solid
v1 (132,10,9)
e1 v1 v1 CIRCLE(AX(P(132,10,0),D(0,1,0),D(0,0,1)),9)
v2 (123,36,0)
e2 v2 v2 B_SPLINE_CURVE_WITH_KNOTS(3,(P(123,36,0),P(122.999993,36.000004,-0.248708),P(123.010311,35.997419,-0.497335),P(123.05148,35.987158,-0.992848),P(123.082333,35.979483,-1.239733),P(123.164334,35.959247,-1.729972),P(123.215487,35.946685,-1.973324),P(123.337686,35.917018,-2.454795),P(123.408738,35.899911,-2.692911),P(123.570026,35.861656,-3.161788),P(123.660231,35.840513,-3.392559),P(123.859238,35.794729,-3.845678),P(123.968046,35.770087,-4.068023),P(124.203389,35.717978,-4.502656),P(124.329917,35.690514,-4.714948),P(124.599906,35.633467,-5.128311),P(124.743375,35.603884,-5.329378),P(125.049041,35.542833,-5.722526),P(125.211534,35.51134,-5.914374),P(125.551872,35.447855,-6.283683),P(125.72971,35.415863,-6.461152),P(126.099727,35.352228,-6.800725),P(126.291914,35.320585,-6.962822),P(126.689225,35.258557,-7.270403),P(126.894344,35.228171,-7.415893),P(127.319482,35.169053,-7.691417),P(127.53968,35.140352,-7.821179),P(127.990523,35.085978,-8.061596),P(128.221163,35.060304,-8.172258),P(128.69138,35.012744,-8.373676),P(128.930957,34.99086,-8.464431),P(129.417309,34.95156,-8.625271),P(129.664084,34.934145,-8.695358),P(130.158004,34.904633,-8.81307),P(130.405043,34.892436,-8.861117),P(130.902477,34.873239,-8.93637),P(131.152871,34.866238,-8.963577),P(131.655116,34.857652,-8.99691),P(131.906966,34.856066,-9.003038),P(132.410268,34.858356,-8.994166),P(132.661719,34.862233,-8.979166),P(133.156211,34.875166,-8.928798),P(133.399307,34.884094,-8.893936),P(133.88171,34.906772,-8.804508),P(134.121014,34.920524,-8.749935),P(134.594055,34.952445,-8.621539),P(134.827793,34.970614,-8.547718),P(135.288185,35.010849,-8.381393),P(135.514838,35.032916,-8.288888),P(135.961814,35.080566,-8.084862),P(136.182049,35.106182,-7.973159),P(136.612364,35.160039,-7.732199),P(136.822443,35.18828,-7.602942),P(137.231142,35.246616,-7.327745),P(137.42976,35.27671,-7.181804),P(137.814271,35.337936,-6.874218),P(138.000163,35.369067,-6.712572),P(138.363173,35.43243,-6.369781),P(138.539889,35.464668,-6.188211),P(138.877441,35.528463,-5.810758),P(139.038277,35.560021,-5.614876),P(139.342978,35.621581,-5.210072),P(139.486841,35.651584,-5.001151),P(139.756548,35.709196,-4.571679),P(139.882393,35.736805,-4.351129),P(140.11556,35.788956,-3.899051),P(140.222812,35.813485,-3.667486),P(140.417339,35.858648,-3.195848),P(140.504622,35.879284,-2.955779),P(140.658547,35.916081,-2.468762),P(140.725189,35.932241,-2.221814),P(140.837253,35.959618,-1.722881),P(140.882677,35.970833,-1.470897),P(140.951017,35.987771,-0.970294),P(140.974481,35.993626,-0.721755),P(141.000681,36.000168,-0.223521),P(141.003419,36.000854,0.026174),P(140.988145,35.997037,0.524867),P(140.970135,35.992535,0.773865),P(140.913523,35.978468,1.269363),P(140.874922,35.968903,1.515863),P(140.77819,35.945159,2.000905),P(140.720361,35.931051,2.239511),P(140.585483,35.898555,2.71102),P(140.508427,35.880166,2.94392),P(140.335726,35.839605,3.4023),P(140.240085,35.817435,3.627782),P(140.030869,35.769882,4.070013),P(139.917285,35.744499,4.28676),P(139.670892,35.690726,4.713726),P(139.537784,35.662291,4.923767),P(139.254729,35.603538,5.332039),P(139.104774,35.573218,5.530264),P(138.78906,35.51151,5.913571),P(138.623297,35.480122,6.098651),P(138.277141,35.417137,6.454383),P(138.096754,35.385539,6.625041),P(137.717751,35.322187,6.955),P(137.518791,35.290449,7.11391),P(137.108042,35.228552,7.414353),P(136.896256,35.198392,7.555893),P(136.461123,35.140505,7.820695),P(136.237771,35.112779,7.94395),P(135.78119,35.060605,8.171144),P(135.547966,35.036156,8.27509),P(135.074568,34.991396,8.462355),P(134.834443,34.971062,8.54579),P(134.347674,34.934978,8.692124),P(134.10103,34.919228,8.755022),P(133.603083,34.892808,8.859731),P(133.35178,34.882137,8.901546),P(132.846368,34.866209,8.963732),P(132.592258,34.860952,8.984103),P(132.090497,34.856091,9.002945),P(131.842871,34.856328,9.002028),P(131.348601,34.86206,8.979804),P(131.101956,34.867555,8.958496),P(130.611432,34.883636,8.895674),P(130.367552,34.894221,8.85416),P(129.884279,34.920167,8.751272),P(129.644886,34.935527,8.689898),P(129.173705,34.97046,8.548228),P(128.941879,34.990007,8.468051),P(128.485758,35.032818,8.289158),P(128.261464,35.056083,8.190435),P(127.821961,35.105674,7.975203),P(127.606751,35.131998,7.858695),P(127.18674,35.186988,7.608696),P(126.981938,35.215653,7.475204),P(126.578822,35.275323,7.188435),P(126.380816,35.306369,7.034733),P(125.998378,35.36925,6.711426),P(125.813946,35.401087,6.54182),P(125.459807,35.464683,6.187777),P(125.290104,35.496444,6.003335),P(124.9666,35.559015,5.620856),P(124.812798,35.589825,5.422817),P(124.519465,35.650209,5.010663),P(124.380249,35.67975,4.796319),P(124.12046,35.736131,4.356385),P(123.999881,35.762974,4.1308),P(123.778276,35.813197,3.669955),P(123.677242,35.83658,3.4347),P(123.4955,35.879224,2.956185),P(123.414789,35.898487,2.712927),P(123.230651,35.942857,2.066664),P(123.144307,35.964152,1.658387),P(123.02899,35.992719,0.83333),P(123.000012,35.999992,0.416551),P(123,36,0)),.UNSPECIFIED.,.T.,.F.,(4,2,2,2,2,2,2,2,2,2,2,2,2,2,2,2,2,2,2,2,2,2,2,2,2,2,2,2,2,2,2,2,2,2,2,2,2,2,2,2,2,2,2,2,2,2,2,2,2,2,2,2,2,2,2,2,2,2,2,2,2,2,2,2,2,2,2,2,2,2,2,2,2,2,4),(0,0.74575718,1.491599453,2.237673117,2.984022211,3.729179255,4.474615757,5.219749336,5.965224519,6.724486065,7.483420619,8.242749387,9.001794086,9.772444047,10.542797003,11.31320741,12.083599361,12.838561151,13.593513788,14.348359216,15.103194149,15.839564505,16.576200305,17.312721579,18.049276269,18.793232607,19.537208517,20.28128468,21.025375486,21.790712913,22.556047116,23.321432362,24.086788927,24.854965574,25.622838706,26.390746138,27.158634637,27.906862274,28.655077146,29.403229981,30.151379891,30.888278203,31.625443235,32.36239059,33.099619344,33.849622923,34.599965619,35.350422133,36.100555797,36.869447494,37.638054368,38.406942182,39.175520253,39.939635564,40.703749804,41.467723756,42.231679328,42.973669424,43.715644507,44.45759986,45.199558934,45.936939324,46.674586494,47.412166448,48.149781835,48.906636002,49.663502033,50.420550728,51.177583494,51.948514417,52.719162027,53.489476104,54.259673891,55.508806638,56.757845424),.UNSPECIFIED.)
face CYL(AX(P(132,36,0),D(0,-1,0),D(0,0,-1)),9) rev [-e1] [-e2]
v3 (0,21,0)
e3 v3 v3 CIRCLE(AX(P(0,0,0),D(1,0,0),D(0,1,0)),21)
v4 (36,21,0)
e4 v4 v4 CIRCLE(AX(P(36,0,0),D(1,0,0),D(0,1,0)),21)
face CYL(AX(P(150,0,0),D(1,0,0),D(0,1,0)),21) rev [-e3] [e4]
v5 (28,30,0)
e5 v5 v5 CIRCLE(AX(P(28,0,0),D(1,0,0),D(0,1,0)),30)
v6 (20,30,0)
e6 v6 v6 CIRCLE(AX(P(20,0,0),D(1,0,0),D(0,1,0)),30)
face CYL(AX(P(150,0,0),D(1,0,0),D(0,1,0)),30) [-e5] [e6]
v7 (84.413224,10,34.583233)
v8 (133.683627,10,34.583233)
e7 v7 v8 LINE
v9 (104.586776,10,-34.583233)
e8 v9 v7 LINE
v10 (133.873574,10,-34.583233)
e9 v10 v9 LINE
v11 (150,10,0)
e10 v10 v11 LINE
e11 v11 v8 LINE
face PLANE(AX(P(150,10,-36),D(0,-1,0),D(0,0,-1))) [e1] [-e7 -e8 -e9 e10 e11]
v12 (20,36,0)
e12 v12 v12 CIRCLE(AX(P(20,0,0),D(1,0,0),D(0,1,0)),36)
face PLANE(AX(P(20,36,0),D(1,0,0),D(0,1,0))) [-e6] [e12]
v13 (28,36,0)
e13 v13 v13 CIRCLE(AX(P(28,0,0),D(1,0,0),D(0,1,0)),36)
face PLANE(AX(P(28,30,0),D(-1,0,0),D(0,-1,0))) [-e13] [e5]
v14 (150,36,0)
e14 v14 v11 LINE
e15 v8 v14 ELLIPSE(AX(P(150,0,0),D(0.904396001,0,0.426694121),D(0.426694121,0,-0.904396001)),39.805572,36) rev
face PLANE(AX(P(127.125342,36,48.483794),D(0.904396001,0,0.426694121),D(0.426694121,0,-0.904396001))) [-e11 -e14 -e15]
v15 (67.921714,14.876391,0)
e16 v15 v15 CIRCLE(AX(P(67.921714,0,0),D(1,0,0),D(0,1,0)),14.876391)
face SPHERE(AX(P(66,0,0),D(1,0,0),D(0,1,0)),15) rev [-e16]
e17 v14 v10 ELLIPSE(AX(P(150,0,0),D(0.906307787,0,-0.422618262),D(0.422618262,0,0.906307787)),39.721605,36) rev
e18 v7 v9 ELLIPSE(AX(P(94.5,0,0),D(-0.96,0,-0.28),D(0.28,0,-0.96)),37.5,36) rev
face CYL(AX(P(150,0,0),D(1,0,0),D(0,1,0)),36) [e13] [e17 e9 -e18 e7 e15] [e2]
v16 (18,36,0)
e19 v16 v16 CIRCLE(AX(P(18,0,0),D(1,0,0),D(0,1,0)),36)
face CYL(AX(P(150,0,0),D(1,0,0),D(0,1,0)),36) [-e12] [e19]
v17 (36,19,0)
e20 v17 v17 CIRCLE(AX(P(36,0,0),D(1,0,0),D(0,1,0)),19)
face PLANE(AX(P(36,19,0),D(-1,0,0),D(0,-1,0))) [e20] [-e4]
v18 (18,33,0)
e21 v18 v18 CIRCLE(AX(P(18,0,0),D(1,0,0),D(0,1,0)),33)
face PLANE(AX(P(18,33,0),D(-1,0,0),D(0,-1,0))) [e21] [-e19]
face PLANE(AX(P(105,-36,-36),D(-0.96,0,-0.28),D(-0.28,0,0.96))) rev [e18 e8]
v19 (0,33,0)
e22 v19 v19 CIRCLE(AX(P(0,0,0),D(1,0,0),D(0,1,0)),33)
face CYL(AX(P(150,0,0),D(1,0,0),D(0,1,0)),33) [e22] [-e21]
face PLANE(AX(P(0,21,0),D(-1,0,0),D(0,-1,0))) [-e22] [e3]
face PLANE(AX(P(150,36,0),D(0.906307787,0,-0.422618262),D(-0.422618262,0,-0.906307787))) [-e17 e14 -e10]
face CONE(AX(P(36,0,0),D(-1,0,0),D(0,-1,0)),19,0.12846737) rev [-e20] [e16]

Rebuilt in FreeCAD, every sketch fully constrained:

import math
import FreeCAD as App
import Part
import Sketcher
Q = App.Units.Quantity


def add_polygon(sketch, points):
    """Adds a closed chain of lines whose ends are joined by coincident constraints."""
    first, n = sketch.GeometryCount, len(points)
    for a, b in zip(points, points[1:] + points[:1]):
        sketch.addGeometry(Part.LineSegment(App.Vector(*a, 0), App.Vector(*b, 0)), False)
    for i in range(n):
        sketch.addConstraint(Sketcher.Constraint("Coincident", first + i, 2, first + (i + 1) % n, 1))

doc = App.newDocument("Part")
body = doc.addObject("PartDesign::Body", "Body")

# Sketch on XY plane
sketch1 = doc.addObject("Sketcher::SketchObject", "Sketch")
body.addObject(sketch1)
sketch1.AttachmentSupport = (doc.XY_Plane, [""])
sketch1.MapMode = "FlatFace"
sketch1.addGeometry(Part.LineSegment(App.Vector(0, 33, 0), App.Vector(0, 21, 0)), False)
sketch1.addGeometry(Part.LineSegment(App.Vector(0, 21, 0), App.Vector(36, 21, 0)), False)
sketch1.addGeometry(Part.LineSegment(App.Vector(36, 21, 0), App.Vector(36, 19, 0)), False)
sketch1.addGeometry(Part.LineSegment(App.Vector(36, 19, 0), App.Vector(67.921714, 14.876391, 0)), False)
sketch1.addGeometry(Part.ArcOfCircle(Part.Circle(App.Vector(66, 0, 0), App.Vector(0, 0, 1), 15), math.radians(0), math.radians(82.639362)), False)
sketch1.addGeometry(Part.LineSegment(App.Vector(81, 0, 0), App.Vector(150, 0, 0)), False)
sketch1.addGeometry(Part.LineSegment(App.Vector(150, 0, 0), App.Vector(150, 36, 0)), False)
sketch1.addGeometry(Part.LineSegment(App.Vector(150, 36, 0), App.Vector(28, 36, 0)), False)
sketch1.addGeometry(Part.LineSegment(App.Vector(28, 36, 0), App.Vector(28, 30, 0)), False)
sketch1.addGeometry(Part.LineSegment(App.Vector(28, 30, 0), App.Vector(20, 30, 0)), False)
sketch1.addGeometry(Part.LineSegment(App.Vector(20, 30, 0), App.Vector(20, 36, 0)), False)
sketch1.addGeometry(Part.LineSegment(App.Vector(20, 36, 0), App.Vector(18, 36, 0)), False)
sketch1.addGeometry(Part.LineSegment(App.Vector(18, 36, 0), App.Vector(18, 33, 0)), False)
sketch1.addGeometry(Part.LineSegment(App.Vector(18, 33, 0), App.Vector(0, 33, 0)), False)
sketch1.addConstraint(Sketcher.Constraint("Coincident", 0, 2, 1, 1))
sketch1.addConstraint(Sketcher.Constraint("Coincident", 1, 2, 2, 1))
sketch1.addConstraint(Sketcher.Constraint("Coincident", 2, 2, 3, 1))
sketch1.addConstraint(Sketcher.Constraint("Tangent", 3, 2, 4, 2))
sketch1.addConstraint(Sketcher.Constraint("Coincident", 4, 1, 5, 1))
sketch1.addConstraint(Sketcher.Constraint("Coincident", 5, 2, 6, 1))
sketch1.addConstraint(Sketcher.Constraint("Coincident", 6, 2, 7, 1))
sketch1.addConstraint(Sketcher.Constraint("Coincident", 7, 2, 8, 1))
sketch1.addConstraint(Sketcher.Constraint("Coincident", 8, 2, 9, 1))
sketch1.addConstraint(Sketcher.Constraint("Coincident", 9, 2, 10, 1))
sketch1.addConstraint(Sketcher.Constraint("Coincident", 10, 2, 11, 1))
sketch1.addConstraint(Sketcher.Constraint("Coincident", 11, 2, 12, 1))
sketch1.addConstraint(Sketcher.Constraint("Coincident", 12, 2, 13, 1))
sketch1.addConstraint(Sketcher.Constraint("Coincident", 13, 2, 0, 1))
sketch1.addConstraint(Sketcher.Constraint("Vertical", 0))
sketch1.addConstraint(Sketcher.Constraint("Horizontal", 1))
sketch1.addConstraint(Sketcher.Constraint("Vertical", 2))
sketch1.addConstraint(Sketcher.Constraint("Horizontal", 5))
sketch1.addConstraint(Sketcher.Constraint("Vertical", 6))
sketch1.addConstraint(Sketcher.Constraint("Horizontal", 7))
sketch1.addConstraint(Sketcher.Constraint("Vertical", 8))
sketch1.addConstraint(Sketcher.Constraint("Horizontal", 9))
sketch1.addConstraint(Sketcher.Constraint("Vertical", 10))
sketch1.addConstraint(Sketcher.Constraint("Horizontal", 11))
sketch1.addConstraint(Sketcher.Constraint("Vertical", 12))
sketch1.addConstraint(Sketcher.Constraint("Horizontal", 13))
sketch1.addConstraint(Sketcher.Constraint("PointOnObject", 4, 3, -1))
sketch1.addConstraint(Sketcher.Constraint("PointOnObject", 0, 2, -2))
sketch1.addConstraint(Sketcher.Constraint("PointOnObject", 4, 1, -1))
sketch1.addConstraint(Sketcher.Constraint("Horizontal", 7, 2, 10, 2))
sketch1.addConstraint(Sketcher.Constraint("Equal", 11, 2))
sketch1.addConstraint(Sketcher.Constraint("Equal", 1, 6))
sketch1.addConstraint(Sketcher.Constraint("Radius", 4, Q("15 mm")))
sketch1.addConstraint(Sketcher.Constraint("DistanceX", 1, 1, 1, 2, Q("36 mm")))
sketch1.addConstraint(Sketcher.Constraint("DistanceX", 5, 1, 5, 2, Q("69 mm")))
sketch1.addConstraint(Sketcher.Constraint("DistanceX", 7, 2, 7, 1, Q("122 mm")))
sketch1.addConstraint(Sketcher.Constraint("DistanceX", 9, 2, 9, 1, Q("8 mm")))
sketch1.addConstraint(Sketcher.Constraint("DistanceX", 11, 2, 11, 1, Q("2 mm")))
sketch1.addConstraint(Sketcher.Constraint("DistanceX", 13, 2, 13, 1, Q("18 mm")))
sketch1.addConstraint(Sketcher.Constraint("DistanceY", 0, 2, 0, 1, Q("12 mm")))
sketch1.addConstraint(Sketcher.Constraint("DistanceY", 8, 2, 8, 1, Q("6 mm")))
sketch1.addConstraint(Sketcher.Constraint("DistanceY", 12, 2, 12, 1, Q("3 mm")))
revolution = doc.addObject("PartDesign::Revolution", "Revolution")
body.addObject(revolution)
revolution.Profile = sketch1
revolution.ReferenceAxis = (sketch1, ["H_Axis"])
revolution.Angle = 360

# Sketch on XZ plane
sketch2 = doc.addObject("Sketcher::SketchObject", "Sketch001")
body.addObject(sketch2)
sketch2.AttachmentSupport = (doc.XZ_Plane, [""])
sketch2.MapMode = "FlatFace"
sketch2.AttachmentOffset = App.Placement(App.Vector(0, 0, -10), App.Rotation())
add_polygon(sketch2, [(105, -36), (84, 36), (150, 36), (150, -36)])  # lines 0-3
sketch2.addConstraint(Sketcher.Constraint("Horizontal", 1))
sketch2.addConstraint(Sketcher.Constraint("Vertical", 2))
sketch2.addConstraint(Sketcher.Constraint("Horizontal", 3))
sketch2.addConstraint(Sketcher.Constraint("DistanceX", 1, 1, 1, 2, Q("66 mm")))
sketch2.addConstraint(Sketcher.Constraint("DistanceX", 3, 2, 3, 1, Q("45 mm")))
sketch2.addConstraint(Sketcher.Constraint("DistanceY", 2, 2, 2, 1, Q("72 mm")))
sketch2.addConstraint(Sketcher.Constraint("DistanceX", -1, 1, 0, 2, Q("84 mm")))
sketch2.addConstraint(Sketcher.Constraint("DistanceY", -1, 1, 0, 2, Q("36 mm")))
pocket1 = doc.addObject("PartDesign::Pocket", "Pocket")
body.addObject(pocket1)
pocket1.Profile = sketch2
pocket1.Type = "ThroughAll"
pocket1.Reversed = True

# Sketch on XZ plane
sketch3 = doc.addObject("Sketcher::SketchObject", "Sketch002")
body.addObject(sketch3)
sketch3.AttachmentSupport = (doc.XZ_Plane, [""])
sketch3.MapMode = "FlatFace"
sketch3.AttachmentOffset = App.Placement(App.Vector(0, 0, -10), App.Rotation())
sketch3.addGeometry(Part.Circle(App.Vector(132, 0, 0), App.Vector(0, 0, 1), 9), False)  # 0
add_polygon(sketch3, [(160.663521, -42.270404), (130.288987, -42.270404), (150, 0), (127.125342, 48.483794), (160.663521, 48.483794)])  # lines 1-5
sketch3.addConstraint(Sketcher.Constraint("Horizontal", 1))
sketch3.addConstraint(Sketcher.Constraint("Horizontal", 4))
sketch3.addConstraint(Sketcher.Constraint("Vertical", 5))
sketch3.addConstraint(Sketcher.Constraint("PointOnObject", 0, 3, -1))
sketch3.addConstraint(Sketcher.Constraint("PointOnObject", 2, 2, -1))
sketch3.addConstraint(Sketcher.Constraint("Diameter", 0, Q("18 mm")))
sketch3.addConstraint(Sketcher.Constraint("Angle", 2, Q("65 deg")))
sketch3.addConstraint(Sketcher.Constraint("DistanceX", -1, 1, 0, 3, Q("132 mm")))
sketch3.addConstraint(Sketcher.Constraint("DistanceX", -1, 1, 2, 2, Q("150 mm")))
sketch3.addConstraint(Sketcher.Constraint("DistanceX", 4, 1, 4, 2, Q("33.53818 mm")))
sketch3.addConstraint(Sketcher.Constraint("Distance", 2, Q("46.64023 mm")))
sketch3.addConstraint(Sketcher.Constraint("Distance", 3, Q("53.609031 mm")))
sketch3.addConstraint(Sketcher.Constraint("DistanceX", 1, 2, 1, 1, Q("30.374534 mm")))
pocket2 = doc.addObject("PartDesign::Pocket", "Pocket001")
body.addObject(pocket2)
pocket2.Profile = sketch3
pocket2.Type = "ThroughAll"

doc.recompute()
